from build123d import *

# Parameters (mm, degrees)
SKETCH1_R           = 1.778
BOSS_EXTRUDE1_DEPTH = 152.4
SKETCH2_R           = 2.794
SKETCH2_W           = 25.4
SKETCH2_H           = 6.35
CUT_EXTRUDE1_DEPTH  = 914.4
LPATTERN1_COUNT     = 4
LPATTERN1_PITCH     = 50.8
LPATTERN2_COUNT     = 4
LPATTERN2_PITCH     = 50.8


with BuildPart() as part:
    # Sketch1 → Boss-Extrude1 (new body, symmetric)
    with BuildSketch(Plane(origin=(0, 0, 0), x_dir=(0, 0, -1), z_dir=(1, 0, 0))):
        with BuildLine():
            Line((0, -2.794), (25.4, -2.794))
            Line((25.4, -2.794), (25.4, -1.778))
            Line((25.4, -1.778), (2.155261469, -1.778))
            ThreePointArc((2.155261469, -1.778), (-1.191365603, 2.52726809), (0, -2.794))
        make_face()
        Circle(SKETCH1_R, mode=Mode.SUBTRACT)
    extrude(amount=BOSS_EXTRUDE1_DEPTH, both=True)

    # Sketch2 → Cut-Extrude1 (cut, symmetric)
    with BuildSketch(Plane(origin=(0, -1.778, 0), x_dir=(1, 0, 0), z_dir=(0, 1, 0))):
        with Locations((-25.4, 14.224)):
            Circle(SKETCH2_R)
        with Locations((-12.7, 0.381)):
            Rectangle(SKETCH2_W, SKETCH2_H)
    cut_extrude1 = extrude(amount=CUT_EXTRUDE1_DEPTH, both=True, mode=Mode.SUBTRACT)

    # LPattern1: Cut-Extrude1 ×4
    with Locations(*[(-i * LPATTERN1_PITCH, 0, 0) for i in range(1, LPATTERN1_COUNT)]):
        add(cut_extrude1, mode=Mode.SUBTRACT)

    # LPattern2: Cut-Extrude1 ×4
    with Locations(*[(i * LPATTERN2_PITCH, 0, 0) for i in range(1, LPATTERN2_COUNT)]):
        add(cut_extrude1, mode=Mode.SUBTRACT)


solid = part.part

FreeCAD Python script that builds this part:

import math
import FreeCAD as App
import Part
import Sketcher
from FreeCAD import Vector
Q = App.Units.Quantity


def add_polygon(sketch, points):
    """Adds a closed chain of lines whose ends are joined by coincident constraints."""
    first, n = sketch.GeometryCount, len(points)
    for a, b in zip(points, points[1:] + points[:1]):
        sketch.addGeometry(Part.LineSegment(App.Vector(*a, 0), App.Vector(*b, 0)), False)
    for i in range(n):
        sketch.addConstraint(Sketcher.Constraint("Coincident", first + i, 2, first + (i + 1) % n, 1))

doc = App.newDocument("Part")
body = doc.addObject("PartDesign::Body", "Body")

sketch1 = doc.addObject("Sketcher::SketchObject", "Sketch")
body.addObject(sketch1)
sketch1.AttachmentSupport = (doc.YZ_Plane, [""])
sketch1.MapMode = "FlatFace"
sketch1.addGeometry([
    Part.LineSegment(Vector(-2.794, 0, 0), Vector(-2.794, -25.4, 0)),
    Part.LineSegment(Vector(-2.794, -25.4, 0), Vector(-1.778, -25.4, 0)),
    Part.LineSegment(Vector(-1.778, -25.4, 0), Vector(-1.778, -2.155261, 0)),
    Part.ArcOfCircle(Part.Circle(Vector(0, 0, 0), Vector(0, 0, 1), 2.794), math.radians(-129.521196), math.radians(180)),
    Part.Circle(Vector(0, 0, 0), Vector(0, 0, 1), 1.778),
], False)
sketch1.addConstraint([
    Sketcher.Constraint("Coincident", 0, 2, 1, 1),
    Sketcher.Constraint("Coincident", 1, 2, 2, 1),
    Sketcher.Constraint("Coincident", 2, 2, 3, 1),
    Sketcher.Constraint("Tangent", 3, 2, 0, 1),
    Sketcher.Constraint("Vertical", 0),
    Sketcher.Constraint("Horizontal", 1),
    Sketcher.Constraint("Vertical", 2),
    Sketcher.Constraint("Coincident", 3, 3, -1, 1),
    Sketcher.Constraint("Coincident", 4, 3, -1, 1),
    Sketcher.Constraint("Diameter", 4, Q("0.14 in")),
    Sketcher.Constraint("DistanceY", 0, 2, 0, 1, Q("1 in")),
    Sketcher.Constraint("Radius", 3, Q("0.11 in")),
    Sketcher.Constraint("DistanceX", 1, 1, 1, 2, Q("0.04 in")),
])
pad1 = doc.addObject("PartDesign::Pad", "Pad")
body.addObject(pad1)
pad1.Profile = sketch1
pad1.Length = Q("12 in")
pad1.Midplane = True

sketch2 = doc.addObject("Sketcher::SketchObject", "Sketch001")
body.addObject(sketch2)
sketch2.AttachmentSupport = (doc.XZ_Plane, [""])
sketch2.MapMode = "FlatFace"
sketch2.AttachmentOffset = App.Placement(Vector(0, 0, 0.07 * 25.4), App.Rotation())
sketch2.addGeometry(Part.Circle(Vector(-25.4, -14.224, 0), Vector(0, 0, 1), 2.794), False)
add_polygon(sketch2, [(-25.4, -3.556), (-25.4, 2.794), (0, 2.794), (0, -3.556)])
sketch2.addConstraint([
    Sketcher.Constraint("Vertical", 1),
    Sketcher.Constraint("Horizontal", 2),
    Sketcher.Constraint("Vertical", 3),
    Sketcher.Constraint("Horizontal", 4),
    Sketcher.Constraint("PointOnObject", 2, 2, -2),
    Sketcher.Constraint("Vertical", 0, 3, 1, 2),
    Sketcher.Constraint("Diameter", 0, Q("0.22 in")),
    Sketcher.Constraint("DistanceX", 2, 1, 2, 2, Q("1 in")),
    Sketcher.Constraint("DistanceY", 1, 1, 1, 2, Q("0.25 in")),
    Sketcher.Constraint("DistanceY", 0, 3, -1, 1, Q("0.56 in")),
    Sketcher.Constraint("DistanceY", -1, 1, 1, 2, Q("0.11 in")),
])
pocket1 = doc.addObject("PartDesign::Pocket", "Pocket")
body.addObject(pocket1)
pocket1.Profile = sketch2
pocket1.Length = Q("72 in")
pocket1.Midplane = True
doc.recompute()

linearpattern = doc.addObject("PartDesign::LinearPattern", "LinearPattern")
body.addObject(linearpattern)
linearpattern.Originals = [pocket1]
linearpattern.Direction = (doc.X_Axis, [""])
linearpattern.Mode = "offset"
linearpattern.Offset = Q("2 in")
linearpattern.Occurrences = 4
linearpattern.Reversed = True
body.Tip = linearpattern
doc.recompute()

linearpattern2 = doc.addObject("PartDesign::LinearPattern", "LinearPattern001")
body.addObject(linearpattern2)
linearpattern2.Originals = [pocket1]
linearpattern2.Direction = (doc.X_Axis, [""])
linearpattern2.Mode = "offset"
linearpattern2.Offset = Q("2 in")
linearpattern2.Occurrences = 4
body.Tip = linearpattern2

doc.recompute()
